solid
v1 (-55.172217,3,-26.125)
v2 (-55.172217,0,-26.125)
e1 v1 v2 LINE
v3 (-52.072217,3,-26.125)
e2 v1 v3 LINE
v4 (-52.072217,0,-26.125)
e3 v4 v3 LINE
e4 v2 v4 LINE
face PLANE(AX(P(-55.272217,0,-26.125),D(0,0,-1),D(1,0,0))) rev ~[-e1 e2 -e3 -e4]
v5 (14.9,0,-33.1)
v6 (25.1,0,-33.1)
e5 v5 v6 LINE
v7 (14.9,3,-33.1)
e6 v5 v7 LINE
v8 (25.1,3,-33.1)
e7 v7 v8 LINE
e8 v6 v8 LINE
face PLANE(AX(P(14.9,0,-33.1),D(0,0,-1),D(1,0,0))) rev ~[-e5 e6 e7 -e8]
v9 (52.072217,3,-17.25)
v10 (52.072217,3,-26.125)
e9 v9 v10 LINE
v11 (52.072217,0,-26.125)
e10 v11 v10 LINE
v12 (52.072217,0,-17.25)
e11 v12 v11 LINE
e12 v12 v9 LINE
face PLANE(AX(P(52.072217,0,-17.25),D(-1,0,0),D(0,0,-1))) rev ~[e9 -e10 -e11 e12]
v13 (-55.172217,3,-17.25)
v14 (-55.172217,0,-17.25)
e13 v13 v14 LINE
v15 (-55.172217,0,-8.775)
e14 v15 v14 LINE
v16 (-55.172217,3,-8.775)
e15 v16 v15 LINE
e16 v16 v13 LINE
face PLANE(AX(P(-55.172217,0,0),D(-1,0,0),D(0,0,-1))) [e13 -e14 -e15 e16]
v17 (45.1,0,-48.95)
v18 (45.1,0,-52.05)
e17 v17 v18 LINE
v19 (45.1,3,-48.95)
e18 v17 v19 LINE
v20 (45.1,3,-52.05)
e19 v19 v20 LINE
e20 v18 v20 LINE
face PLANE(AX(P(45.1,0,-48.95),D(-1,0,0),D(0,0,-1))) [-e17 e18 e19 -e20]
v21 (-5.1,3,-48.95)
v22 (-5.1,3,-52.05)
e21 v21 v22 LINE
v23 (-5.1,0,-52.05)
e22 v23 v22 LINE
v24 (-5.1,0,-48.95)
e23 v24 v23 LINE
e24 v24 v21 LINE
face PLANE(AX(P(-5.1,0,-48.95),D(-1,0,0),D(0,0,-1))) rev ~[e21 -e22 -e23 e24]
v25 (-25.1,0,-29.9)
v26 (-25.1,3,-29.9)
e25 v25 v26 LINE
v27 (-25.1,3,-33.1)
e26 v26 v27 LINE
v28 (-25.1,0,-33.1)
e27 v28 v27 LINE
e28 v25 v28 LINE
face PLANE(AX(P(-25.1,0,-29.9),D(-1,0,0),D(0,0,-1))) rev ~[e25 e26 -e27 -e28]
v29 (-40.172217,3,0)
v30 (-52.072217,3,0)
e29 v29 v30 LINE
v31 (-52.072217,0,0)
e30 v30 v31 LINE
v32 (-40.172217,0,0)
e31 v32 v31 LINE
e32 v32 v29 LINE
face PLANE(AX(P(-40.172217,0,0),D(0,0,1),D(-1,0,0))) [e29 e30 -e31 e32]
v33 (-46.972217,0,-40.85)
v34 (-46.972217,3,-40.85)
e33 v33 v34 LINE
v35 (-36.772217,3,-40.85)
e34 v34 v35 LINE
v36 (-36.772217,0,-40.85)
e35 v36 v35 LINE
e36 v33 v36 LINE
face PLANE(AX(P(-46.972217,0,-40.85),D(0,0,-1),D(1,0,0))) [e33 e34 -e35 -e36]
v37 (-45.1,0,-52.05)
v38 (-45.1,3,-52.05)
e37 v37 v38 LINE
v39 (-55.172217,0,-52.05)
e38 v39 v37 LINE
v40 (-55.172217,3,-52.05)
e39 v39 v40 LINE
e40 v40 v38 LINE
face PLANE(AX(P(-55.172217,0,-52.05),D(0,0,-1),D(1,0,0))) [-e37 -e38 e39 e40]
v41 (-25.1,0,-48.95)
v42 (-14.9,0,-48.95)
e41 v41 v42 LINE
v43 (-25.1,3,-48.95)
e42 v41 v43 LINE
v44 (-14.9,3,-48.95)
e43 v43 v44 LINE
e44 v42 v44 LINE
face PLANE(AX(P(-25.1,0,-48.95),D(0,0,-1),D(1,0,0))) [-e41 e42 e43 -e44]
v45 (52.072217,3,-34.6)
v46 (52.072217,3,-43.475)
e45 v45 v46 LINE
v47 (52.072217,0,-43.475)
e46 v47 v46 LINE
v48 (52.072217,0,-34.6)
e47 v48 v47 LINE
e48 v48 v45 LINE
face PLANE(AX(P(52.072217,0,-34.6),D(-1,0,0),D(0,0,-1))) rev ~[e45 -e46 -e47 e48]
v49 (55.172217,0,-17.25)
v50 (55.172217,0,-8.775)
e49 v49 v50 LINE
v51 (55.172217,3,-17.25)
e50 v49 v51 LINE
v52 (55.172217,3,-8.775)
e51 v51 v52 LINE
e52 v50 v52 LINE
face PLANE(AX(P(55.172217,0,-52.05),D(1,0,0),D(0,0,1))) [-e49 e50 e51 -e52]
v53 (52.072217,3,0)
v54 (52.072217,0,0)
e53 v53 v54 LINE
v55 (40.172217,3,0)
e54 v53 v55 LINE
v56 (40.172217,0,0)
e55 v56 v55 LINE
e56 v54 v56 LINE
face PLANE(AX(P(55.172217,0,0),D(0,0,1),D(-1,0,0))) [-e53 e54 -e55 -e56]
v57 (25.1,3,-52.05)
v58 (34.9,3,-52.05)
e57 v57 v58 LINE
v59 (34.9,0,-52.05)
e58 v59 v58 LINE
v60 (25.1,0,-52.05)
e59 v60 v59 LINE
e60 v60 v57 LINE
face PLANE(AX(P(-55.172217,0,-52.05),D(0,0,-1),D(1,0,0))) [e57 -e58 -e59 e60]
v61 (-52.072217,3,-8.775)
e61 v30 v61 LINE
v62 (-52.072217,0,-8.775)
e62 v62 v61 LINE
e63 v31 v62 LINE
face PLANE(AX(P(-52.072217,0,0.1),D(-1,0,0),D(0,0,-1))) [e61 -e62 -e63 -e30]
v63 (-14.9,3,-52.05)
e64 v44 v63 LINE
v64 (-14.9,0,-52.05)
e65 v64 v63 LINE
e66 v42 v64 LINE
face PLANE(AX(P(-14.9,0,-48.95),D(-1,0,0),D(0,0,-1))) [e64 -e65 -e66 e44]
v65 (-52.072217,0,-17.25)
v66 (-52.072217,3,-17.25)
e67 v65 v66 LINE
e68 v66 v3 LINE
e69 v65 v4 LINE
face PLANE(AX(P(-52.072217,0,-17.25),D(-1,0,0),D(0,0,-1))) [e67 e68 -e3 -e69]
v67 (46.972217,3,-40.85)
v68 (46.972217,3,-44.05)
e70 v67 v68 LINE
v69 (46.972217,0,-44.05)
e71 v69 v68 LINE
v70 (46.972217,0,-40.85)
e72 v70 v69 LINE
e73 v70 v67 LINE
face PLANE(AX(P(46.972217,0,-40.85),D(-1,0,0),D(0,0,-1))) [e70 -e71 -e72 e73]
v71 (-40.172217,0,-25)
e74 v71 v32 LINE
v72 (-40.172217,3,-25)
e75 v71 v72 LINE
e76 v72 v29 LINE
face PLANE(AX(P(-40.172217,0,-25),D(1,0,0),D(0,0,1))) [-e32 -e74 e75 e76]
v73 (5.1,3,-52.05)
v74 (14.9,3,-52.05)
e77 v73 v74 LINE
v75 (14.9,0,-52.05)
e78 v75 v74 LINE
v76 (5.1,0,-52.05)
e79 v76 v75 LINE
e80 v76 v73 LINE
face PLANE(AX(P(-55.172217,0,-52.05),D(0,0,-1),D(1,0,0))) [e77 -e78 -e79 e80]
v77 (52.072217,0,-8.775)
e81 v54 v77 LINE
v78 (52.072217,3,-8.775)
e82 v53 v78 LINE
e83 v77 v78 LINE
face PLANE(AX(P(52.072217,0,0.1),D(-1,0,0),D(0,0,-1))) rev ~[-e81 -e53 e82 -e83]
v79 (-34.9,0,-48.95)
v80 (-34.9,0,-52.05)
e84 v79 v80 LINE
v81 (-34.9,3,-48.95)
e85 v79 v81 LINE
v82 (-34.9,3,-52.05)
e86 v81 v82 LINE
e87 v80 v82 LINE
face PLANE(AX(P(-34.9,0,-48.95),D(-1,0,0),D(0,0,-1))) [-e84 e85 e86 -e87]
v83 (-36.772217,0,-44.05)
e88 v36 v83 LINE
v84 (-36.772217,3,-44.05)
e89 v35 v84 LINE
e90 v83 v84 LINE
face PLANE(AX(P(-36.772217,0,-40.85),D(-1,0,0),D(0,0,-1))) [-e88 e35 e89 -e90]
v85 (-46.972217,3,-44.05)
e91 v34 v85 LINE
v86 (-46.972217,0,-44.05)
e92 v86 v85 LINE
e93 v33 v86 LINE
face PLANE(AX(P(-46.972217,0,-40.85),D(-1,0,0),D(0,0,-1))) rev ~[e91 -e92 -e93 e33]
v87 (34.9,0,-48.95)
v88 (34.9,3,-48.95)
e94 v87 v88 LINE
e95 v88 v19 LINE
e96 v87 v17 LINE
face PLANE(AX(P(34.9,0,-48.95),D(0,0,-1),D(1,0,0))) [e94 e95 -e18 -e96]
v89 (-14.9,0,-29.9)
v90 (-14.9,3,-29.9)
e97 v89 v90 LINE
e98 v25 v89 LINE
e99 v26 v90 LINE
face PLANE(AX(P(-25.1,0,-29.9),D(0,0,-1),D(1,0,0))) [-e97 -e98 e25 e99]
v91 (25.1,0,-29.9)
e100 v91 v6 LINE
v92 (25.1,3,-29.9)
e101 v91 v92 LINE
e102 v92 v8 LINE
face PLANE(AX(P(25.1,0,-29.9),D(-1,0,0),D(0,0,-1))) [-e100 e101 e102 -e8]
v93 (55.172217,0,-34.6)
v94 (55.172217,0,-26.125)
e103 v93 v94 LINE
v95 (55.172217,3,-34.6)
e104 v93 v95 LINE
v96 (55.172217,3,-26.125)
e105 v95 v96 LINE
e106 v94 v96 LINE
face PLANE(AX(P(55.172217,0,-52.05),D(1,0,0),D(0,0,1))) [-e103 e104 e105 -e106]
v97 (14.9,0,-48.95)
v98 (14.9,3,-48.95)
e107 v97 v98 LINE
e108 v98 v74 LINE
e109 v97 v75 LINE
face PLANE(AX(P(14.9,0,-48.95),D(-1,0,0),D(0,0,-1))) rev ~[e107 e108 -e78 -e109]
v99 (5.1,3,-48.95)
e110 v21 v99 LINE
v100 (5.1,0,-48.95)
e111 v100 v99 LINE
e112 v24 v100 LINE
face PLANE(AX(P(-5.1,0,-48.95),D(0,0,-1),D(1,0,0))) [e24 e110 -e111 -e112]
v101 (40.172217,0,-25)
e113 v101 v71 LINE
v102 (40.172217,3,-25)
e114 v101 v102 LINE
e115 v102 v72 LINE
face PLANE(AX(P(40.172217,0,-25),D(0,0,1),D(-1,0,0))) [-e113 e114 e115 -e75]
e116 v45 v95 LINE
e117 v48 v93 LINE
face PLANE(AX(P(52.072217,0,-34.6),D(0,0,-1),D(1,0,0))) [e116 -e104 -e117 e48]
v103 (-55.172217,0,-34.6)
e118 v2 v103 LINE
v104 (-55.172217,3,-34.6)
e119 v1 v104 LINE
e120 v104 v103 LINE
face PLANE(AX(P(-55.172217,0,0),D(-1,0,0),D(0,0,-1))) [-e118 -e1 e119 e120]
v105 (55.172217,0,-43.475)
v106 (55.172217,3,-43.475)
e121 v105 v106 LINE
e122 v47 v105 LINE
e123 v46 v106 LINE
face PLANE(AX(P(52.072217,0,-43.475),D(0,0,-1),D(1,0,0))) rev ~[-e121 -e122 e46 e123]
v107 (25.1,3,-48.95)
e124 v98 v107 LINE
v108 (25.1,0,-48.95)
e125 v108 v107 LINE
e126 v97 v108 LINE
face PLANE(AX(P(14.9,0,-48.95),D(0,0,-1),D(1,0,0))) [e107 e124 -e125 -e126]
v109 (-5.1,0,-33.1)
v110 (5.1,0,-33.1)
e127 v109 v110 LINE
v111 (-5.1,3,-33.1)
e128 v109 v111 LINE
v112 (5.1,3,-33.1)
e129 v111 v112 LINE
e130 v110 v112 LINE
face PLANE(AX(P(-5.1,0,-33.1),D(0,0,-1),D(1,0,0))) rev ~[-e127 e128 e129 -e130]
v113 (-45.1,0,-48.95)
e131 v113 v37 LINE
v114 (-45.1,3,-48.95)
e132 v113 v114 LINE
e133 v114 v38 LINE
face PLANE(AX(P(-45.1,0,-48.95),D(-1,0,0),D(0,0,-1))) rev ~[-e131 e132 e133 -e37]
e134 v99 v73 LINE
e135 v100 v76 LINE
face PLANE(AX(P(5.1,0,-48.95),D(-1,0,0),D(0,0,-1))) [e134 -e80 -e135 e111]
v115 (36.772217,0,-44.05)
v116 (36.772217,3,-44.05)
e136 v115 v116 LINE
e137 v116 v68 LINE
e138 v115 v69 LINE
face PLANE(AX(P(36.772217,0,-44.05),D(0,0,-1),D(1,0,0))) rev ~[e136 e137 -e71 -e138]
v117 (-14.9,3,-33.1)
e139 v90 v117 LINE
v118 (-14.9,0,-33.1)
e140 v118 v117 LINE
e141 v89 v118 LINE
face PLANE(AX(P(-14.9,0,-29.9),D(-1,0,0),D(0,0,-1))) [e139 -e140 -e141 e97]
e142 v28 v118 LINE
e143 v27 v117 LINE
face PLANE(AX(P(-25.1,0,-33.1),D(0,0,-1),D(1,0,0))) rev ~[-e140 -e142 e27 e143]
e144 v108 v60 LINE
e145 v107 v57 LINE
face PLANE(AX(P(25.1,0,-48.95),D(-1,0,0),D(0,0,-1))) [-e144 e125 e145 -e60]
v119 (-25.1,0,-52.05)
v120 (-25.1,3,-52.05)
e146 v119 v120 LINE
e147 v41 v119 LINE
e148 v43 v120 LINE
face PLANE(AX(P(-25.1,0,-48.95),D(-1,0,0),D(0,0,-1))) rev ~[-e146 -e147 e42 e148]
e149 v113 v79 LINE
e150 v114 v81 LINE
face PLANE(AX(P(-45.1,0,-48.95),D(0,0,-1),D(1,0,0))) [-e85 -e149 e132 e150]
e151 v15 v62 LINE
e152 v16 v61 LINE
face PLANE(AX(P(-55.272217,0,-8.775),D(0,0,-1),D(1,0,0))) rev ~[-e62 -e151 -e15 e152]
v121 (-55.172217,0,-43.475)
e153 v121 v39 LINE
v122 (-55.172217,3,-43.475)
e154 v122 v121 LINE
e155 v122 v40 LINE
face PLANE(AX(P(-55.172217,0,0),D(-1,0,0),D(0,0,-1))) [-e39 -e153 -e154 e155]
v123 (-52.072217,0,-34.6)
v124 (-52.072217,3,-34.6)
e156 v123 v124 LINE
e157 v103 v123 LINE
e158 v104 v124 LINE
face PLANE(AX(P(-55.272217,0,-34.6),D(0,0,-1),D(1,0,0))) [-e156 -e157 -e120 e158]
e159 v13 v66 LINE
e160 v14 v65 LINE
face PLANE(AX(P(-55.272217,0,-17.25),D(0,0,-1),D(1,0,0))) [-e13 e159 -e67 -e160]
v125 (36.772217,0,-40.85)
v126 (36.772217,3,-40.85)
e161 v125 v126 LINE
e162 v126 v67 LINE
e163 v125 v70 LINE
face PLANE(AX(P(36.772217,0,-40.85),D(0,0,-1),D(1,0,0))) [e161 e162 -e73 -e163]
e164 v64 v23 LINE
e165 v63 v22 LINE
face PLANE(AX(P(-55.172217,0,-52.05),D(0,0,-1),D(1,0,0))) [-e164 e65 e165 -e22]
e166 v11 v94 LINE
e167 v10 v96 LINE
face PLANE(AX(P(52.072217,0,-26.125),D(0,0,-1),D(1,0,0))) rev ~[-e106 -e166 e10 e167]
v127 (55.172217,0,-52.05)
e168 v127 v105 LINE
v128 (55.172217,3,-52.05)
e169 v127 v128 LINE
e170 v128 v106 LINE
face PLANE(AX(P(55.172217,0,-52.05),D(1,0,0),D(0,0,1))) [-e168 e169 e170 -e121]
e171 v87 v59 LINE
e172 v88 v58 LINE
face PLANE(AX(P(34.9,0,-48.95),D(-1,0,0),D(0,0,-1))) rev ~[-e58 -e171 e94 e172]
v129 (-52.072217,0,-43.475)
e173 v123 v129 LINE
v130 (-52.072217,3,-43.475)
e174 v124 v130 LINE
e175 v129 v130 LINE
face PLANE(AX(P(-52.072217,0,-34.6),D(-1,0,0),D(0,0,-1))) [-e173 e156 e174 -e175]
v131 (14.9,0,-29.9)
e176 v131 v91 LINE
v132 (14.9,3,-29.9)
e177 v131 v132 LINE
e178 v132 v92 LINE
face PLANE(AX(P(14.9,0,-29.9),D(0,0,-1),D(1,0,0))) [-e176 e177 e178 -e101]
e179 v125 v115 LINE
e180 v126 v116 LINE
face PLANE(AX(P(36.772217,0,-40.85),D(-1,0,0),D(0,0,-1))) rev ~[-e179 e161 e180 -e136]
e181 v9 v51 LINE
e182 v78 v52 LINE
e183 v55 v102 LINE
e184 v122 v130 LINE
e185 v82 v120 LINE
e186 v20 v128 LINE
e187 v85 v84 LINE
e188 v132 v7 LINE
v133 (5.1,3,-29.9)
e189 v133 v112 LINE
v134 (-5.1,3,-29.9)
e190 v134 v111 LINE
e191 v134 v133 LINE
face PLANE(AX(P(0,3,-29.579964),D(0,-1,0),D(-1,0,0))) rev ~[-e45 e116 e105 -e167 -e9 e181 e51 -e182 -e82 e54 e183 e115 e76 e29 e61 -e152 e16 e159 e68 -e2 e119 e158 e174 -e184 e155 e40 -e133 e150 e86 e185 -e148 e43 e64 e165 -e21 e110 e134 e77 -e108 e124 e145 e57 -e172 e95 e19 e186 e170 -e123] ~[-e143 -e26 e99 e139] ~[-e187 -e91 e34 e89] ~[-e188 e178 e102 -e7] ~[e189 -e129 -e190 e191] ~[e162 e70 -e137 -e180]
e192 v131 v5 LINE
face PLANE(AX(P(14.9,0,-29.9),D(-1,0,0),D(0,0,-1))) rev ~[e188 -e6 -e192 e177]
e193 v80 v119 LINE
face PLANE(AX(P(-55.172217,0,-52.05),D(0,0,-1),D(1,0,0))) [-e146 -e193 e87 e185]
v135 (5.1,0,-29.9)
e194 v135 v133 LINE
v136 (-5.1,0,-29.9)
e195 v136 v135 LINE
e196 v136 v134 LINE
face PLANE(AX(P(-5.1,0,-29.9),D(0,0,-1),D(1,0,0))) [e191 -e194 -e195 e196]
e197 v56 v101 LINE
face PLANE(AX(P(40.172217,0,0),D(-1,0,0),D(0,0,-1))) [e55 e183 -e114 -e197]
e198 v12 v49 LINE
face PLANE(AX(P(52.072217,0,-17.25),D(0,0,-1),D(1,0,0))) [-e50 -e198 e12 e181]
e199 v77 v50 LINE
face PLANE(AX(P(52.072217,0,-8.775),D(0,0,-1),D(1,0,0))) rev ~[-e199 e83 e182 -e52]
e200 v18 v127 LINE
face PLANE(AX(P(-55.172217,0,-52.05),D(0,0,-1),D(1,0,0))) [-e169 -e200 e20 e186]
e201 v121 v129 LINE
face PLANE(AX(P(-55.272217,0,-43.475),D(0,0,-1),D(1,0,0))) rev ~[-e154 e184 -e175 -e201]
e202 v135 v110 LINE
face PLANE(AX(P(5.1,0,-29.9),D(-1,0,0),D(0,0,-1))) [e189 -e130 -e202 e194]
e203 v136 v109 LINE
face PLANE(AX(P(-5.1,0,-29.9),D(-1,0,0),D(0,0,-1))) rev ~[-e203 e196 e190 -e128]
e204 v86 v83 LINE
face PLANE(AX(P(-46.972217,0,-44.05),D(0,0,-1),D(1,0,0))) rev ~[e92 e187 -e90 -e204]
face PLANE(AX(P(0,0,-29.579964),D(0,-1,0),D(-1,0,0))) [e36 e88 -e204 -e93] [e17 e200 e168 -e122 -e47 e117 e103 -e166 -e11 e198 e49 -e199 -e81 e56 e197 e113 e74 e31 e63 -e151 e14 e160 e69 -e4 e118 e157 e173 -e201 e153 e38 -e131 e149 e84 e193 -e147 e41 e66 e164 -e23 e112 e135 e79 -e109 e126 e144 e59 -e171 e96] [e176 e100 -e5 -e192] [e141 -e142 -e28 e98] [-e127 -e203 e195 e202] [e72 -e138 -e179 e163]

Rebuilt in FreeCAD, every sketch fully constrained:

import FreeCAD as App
import Part
import Sketcher

V = App.Vector
Q = App.Units.Quantity


def add_polygon(sketch, points):
    """Adds a closed chain of lines whose ends are joined by coincident constraints."""
    first, n = sketch.GeometryCount, len(points)
    for a, b in zip(points, points[1:] + points[:1]):
        sketch.addGeometry(Part.LineSegment(App.Vector(*a, 0), App.Vector(*b, 0)), False)
    for i in range(n):
        sketch.addConstraint(Sketcher.Constraint("Coincident", first + i, 2, first + (i + 1) % n, 1))

doc = App.newDocument("Part")
body = doc.addObject("PartDesign::Body", "Body")

# Sketch on XZ plane
sketch1 = doc.addObject("Sketcher::SketchObject", "Sketch")
body.addObject(sketch1)
sketch1.AttachmentSupport = (doc.XZ_Plane, [""])
sketch1.MapMode = "FlatFace"
add_polygon(sketch1, [(55, -52), (-55, -52), (-55, 0), (-40, 0), (-40, -25), (40, -25), (40, 0), (55, 0)])  # lines 0-7
sketch1.addConstraint([
    Sketcher.Constraint("Horizontal", 0),
    Sketcher.Constraint("Vertical", 1),
    Sketcher.Constraint("Horizontal", 2),
    Sketcher.Constraint("Vertical", 3),
    Sketcher.Constraint("Horizontal", 4),
    Sketcher.Constraint("Vertical", 5),
    Sketcher.Constraint("Horizontal", 6),
    Sketcher.Constraint("Vertical", 7),
    Sketcher.Constraint("Symmetric", 2, 2, 5, 2, -1, 1),
    Sketcher.Constraint("Symmetric", 1, 2, 6, 2, -2),
    Sketcher.Constraint("DistanceX", 2, 1, 2, 2, Q("15 mm")),
    Sketcher.Constraint("DistanceY", 3, 2, 3, 1, Q("25 mm")),
    Sketcher.Constraint("DistanceY", 1, 1, 1, 2, Q("52.05 mm")),
    Sketcher.Constraint("DistanceX", 0, 2, 0, 1, Q("110.344434 mm")),
])
pad1 = doc.addObject("PartDesign::Pad", "Pad")
body.addObject(pad1)
pad1.Profile = sketch1
pad1.Length = 3
pad1.Reversed = True

# Sketch on XZ plane
sketch2 = doc.addObject("Sketcher::SketchObject", "Sketch001")
body.addObject(sketch2)
sketch2.AttachmentSupport = (doc.XZ_Plane, [""])
sketch2.MapMode = "FlatFace"
add_polygon(sketch2, [(34.9, -52.1), (34.9, -49), (45.1, -49), (45.1, -52.1)])  # lines 0-3
add_polygon(sketch2, [(36.8, -44), (36.8, -40.9), (47, -40.9), (47, -44)])  # lines 4-7
add_polygon(sketch2, [(52.1, -43.5), (52.1, -34.6), (55.3, -34.6), (55.3, -43.5)])  # lines 8-11
add_polygon(sketch2, [(52.1, -26.1), (52.1, -17.2), (55.3, -17.2), (55.3, -26.1)])  # lines 12-15
add_polygon(sketch2, [(52.1, -8.8), (52.1, 0.1), (55.3, 0.1), (55.3, -8.8)])  # lines 16-19
add_polygon(sketch2, [(14.9, -33.1), (14.9, -29.9), (25.1, -29.9), (25.1, -33.1)])  # lines 20-23
add_polygon(sketch2, [(-5.1, -33.1), (-5.1, -29.9), (5.1, -29.9), (5.1, -33.1)])  # lines 24-27
add_polygon(sketch2, [(14.9, -52.1), (14.9, -49), (25.1, -49), (25.1, -52.1)])  # lines 28-31
add_polygon(sketch2, [(-55.3, -8.8), (-55.3, 0.1), (-52.1, 0.1), (-52.1, -8.8)])  # lines 32-35
add_polygon(sketch2, [(-55.3, -26.1), (-55.3, -17.2), (-52.1, -17.2), (-52.1, -26.1)])  # lines 36-39
add_polygon(sketch2, [(-55.3, -43.5), (-55.3, -34.6), (-52.1, -34.6), (-52.1, -43.5)])  # lines 40-43
add_polygon(sketch2, [(-45.1, -52.1), (-45.1, -49), (-34.9, -49), (-34.9, -52.1)])  # lines 44-47
add_polygon(sketch2, [(-47, -44), (-47, -40.9), (-36.8, -40.9), (-36.8, -44)])  # lines 48-51
add_polygon(sketch2, [(-5.1, -52.1), (-5.1, -49), (5.1, -49), (5.1, -52.1)])  # lines 52-55
add_polygon(sketch2, [(-25.1, -33.1), (-25.1, -29.9), (-14.9, -29.9), (-14.9, -33.1)])  # lines 56-59
add_polygon(sketch2, [(-25.1, -52.1), (-25.1, -49), (-14.9, -49), (-14.9, -52.1)])  # lines 60-63
sketch2.addConstraint([
    Sketcher.Constraint("Vertical", 0),
    Sketcher.Constraint("Horizontal", 1),
    Sketcher.Constraint("Vertical", 2),
    Sketcher.Constraint("Horizontal", 3),
    Sketcher.Constraint("Vertical", 4),
    Sketcher.Constraint("Horizontal", 5),
    Sketcher.Constraint("Vertical", 6),
    Sketcher.Constraint("Horizontal", 7),
    Sketcher.Constraint("Vertical", 8),
    Sketcher.Constraint("Horizontal", 9),
    Sketcher.Constraint("Vertical", 10),
    Sketcher.Constraint("Horizontal", 11),
    Sketcher.Constraint("Vertical", 12),
    Sketcher.Constraint("Horizontal", 13),
    Sketcher.Constraint("Vertical", 14),
    Sketcher.Constraint("Horizontal", 15),
    Sketcher.Constraint("Vertical", 16),
    Sketcher.Constraint("Horizontal", 17),
    Sketcher.Constraint("Vertical", 18),
    Sketcher.Constraint("Horizontal", 19),
    Sketcher.Constraint("Vertical", 20),
    Sketcher.Constraint("Horizontal", 21),
    Sketcher.Constraint("Vertical", 22),
    Sketcher.Constraint("Horizontal", 23),
    Sketcher.Constraint("Vertical", 24),
    Sketcher.Constraint("Horizontal", 25),
    Sketcher.Constraint("Vertical", 26),
    Sketcher.Constraint("Horizontal", 27),
    Sketcher.Constraint("Vertical", 28),
    Sketcher.Constraint("Horizontal", 29),
    Sketcher.Constraint("Vertical", 30),
    Sketcher.Constraint("Horizontal", 31),
    Sketcher.Constraint("Vertical", 32),
    Sketcher.Constraint("Horizontal", 33),
    Sketcher.Constraint("Vertical", 34),
    Sketcher.Constraint("Horizontal", 35),
    Sketcher.Constraint("Vertical", 36),
    Sketcher.Constraint("Horizontal", 37),
    Sketcher.Constraint("Vertical", 38),
    Sketcher.Constraint("Horizontal", 39),
    Sketcher.Constraint("Vertical", 40),
    Sketcher.Constraint("Horizontal", 41),
    Sketcher.Constraint("Vertical", 42),
    Sketcher.Constraint("Horizontal", 43),
    Sketcher.Constraint("Vertical", 44),
    Sketcher.Constraint("Horizontal", 45),
    Sketcher.Constraint("Vertical", 46),
    Sketcher.Constraint("Horizontal", 47),
    Sketcher.Constraint("Vertical", 48),
    Sketcher.Constraint("Horizontal", 49),
    Sketcher.Constraint("Vertical", 50),
    Sketcher.Constraint("Horizontal", 51),
    Sketcher.Constraint("Vertical", 52),
    Sketcher.Constraint("Horizontal", 53),
    Sketcher.Constraint("Vertical", 54),
    Sketcher.Constraint("Horizontal", 55),
    Sketcher.Constraint("Vertical", 56),
    Sketcher.Constraint("Horizontal", 57),
    Sketcher.Constraint("Vertical", 58),
    Sketcher.Constraint("Horizontal", 59),
    Sketcher.Constraint("Vertical", 60),
    Sketcher.Constraint("Horizontal", 61),
    Sketcher.Constraint("Vertical", 62),
    Sketcher.Constraint("Horizontal", 63),
    Sketcher.Constraint("Symmetric", 17, 2, 32, 2, -2),
    Sketcher.Constraint("Symmetric", 19, 2, 34, 2, -2),
    Sketcher.Constraint("Symmetric", 13, 2, 36, 2, -2),
    Sketcher.Constraint("Symmetric", 15, 2, 38, 2, -2),
    Sketcher.Constraint("Symmetric", 9, 2, 40, 2, -2),
    Sketcher.Constraint("Symmetric", 11, 2, 42, 2, -2),
    Sketcher.Constraint("Symmetric", 1, 2, 44, 2, -2),
    Sketcher.Constraint("Symmetric", 3, 2, 46, 2, -2),
    Sketcher.Constraint("Symmetric", 5, 2, 48, 2, -2),
    Sketcher.Constraint("Symmetric", 7, 2, 50, 2, -2),
    Sketcher.Constraint("Symmetric", 21, 2, 56, 2, -2),
    Sketcher.Constraint("Symmetric", 23, 2, 58, 2, -2),
    Sketcher.Constraint("Symmetric", 29, 2, 60, 2, -2),
    Sketcher.Constraint("Symmetric", 31, 2, 62, 2, -2),
    Sketcher.Constraint("Horizontal", 21, 2, 24, 2),
    Sketcher.Constraint("Horizontal", 23, 2, 26, 2),
    Sketcher.Constraint("Horizontal", 1, 2, 28, 2),
    Sketcher.Constraint("Horizontal", 3, 2, 30, 2),
    Sketcher.Constraint("Horizontal", 45, 2, 52, 2),
    Sketcher.Constraint("Horizontal", 47, 2, 54, 2),
    Sketcher.Constraint("Vertical", 11, 2, 12, 2),
    Sketcher.Constraint("Vertical", 10, 2, 13, 2),
    Sketcher.Constraint("Vertical", 15, 2, 16, 2),
    Sketcher.Constraint("Vertical", 14, 2, 17, 2),
    Sketcher.Constraint("Vertical", 23, 2, 28, 2),
    Sketcher.Constraint("Vertical", 22, 2, 29, 2),
    Sketcher.Constraint("Vertical", 27, 2, 52, 2),
    Sketcher.Constraint("Vertical", 26, 2, 53, 2),
    Sketcher.Constraint("Equal", 3, 5),
    Sketcher.Constraint("Equal", 7, 21),
    Sketcher.Constraint("Equal", 23, 25),
    Sketcher.Constraint("Equal", 43, 0),
    Sketcher.Constraint("Equal", 2, 4),
    Sketcher.Constraint("Equal", 10, 12),
    Sketcher.Constraint("Equal", 14, 16),
    Sketcher.Constraint("Equal", 6, 20),
    Sketcher.Constraint("DistanceX", 1, 1, 1, 2, Q("10.2 mm")),
    Sketcher.Constraint("DistanceX", 9, 1, 9, 2, Q("3.2 mm")),
    Sketcher.Constraint("DistanceX", -1, 1, 0, 2, Q("34.9 mm")),
    Sketcher.Constraint("DistanceY", 8, 2, -1, 1, Q("34.6 mm")),
    Sketcher.Constraint("DistanceY", -1, 1, 16, 2, Q("0.1 mm")),
    Sketcher.Constraint("DistanceX", -1, 1, 20, 2, Q("14.9 mm")),
    Sketcher.Constraint("DistanceY", 20, 2, -1, 1, Q("29.9 mm")),
    Sketcher.Constraint("DistanceX", 24, 2, -1, 1, Q("5.1 mm")),
    Sketcher.Constraint("DistanceY", 8, 1, 8, 2, Q("8.875 mm")),
    Sketcher.Constraint("DistanceY", 0, 2, -1, 1, Q("48.95 mm")),
    Sketcher.Constraint("DistanceY", 4, 2, -1, 1, Q("40.85 mm")),
    Sketcher.Constraint("DistanceY", 12, 2, -1, 1, Q("17.25 mm")),
    Sketcher.Constraint("DistanceX", -1, 1, 4, 2, Q("36.772217 mm")),
    Sketcher.Constraint("DistanceX", -1, 1, 8, 2, Q("52.072217 mm")),
])
pocket1 = doc.addObject("PartDesign::Pocket", "Pocket")
body.addObject(pocket1)
pocket1.Profile = sketch2
pocket1.Type = "ThroughAll"

doc.recompute()
